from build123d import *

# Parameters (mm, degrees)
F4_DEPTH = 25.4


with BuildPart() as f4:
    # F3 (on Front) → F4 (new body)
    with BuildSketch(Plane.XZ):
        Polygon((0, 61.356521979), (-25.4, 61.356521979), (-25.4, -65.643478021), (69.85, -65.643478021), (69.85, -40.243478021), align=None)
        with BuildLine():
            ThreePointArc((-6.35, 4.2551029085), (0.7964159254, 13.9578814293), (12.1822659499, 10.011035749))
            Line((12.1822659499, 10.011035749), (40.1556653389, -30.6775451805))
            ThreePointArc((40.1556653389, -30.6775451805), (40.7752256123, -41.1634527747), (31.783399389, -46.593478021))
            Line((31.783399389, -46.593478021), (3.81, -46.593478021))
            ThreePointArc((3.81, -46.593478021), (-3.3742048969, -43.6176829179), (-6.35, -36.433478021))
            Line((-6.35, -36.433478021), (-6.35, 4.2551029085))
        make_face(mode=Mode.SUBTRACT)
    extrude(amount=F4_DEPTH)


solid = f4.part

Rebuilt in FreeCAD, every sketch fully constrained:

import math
import FreeCAD as App
import Part
import Sketcher
from FreeCAD import Vector
Q = App.Units.Quantity


def add_polygon(sketch, points):
    """Adds a closed chain of lines whose ends are joined by coincident constraints."""
    first, n = sketch.GeometryCount, len(points)
    for a, b in zip(points, points[1:] + points[:1]):
        sketch.addGeometry(Part.LineSegment(App.Vector(*a, 0), App.Vector(*b, 0)), False)
    for i in range(n):
        sketch.addConstraint(Sketcher.Constraint("Coincident", first + i, 2, first + (i + 1) % n, 1))

doc = App.newDocument("Part")
body = doc.addObject("PartDesign::Body", "Body")

# Sketch on XZ plane
sketch1 = body.newObject("Sketcher::SketchObject", "Sketch")
sketch1.AttachmentSupport = (doc.getObject("XZ_Plane"), [""])
sketch1.MapMode = "FlatFace"
add_polygon(sketch1, [(0, 61.356522), (-25.4, 61.356522), (-25.4, -65.643478), (69.85, -65.643478), (69.85, -40.243478)])  # lines 0-4
sketch1.addGeometry(Part.LineSegment(Vector(-6.35, -36.433478, 0), Vector(-6.35, 4.255103, 0)), False)  # 5
sketch1.addGeometry(Part.ArcOfCircle(Part.Circle(Vector(3.81, 4.255103, 0), Vector(0, 0, 1), 10.16), math.radians(34.508523), math.radians(180)), False)  # 6
sketch1.addGeometry(Part.LineSegment(Vector(12.182266, 10.011036, 0), Vector(40.155665, -30.677545, 0)), False)  # 7
sketch1.addGeometry(Part.ArcOfCircle(Part.Circle(Vector(31.783399, -36.433478, 0), Vector(0, 0, 1), 10.16), math.radians(-90), math.radians(34.508523)), False)  # 8
sketch1.addGeometry(Part.LineSegment(Vector(31.783399, -46.593478, 0), Vector(3.81, -46.593478, 0)), False)  # 9
sketch1.addGeometry(Part.ArcOfCircle(Part.Circle(Vector(3.81, -36.433478, 0), Vector(0, 0, 1), 10.16), math.radians(180), math.radians(270)), False)  # 10
sketch1.addConstraint([
    Sketcher.Constraint("Tangent", 5, 2, 6, 2),
    Sketcher.Constraint("Tangent", 6, 1, 7, 1),
    Sketcher.Constraint("Tangent", 7, 2, 8, 2),
    Sketcher.Constraint("Tangent", 8, 1, 9, 1),
    Sketcher.Constraint("Tangent", 9, 2, 10, 2),
    Sketcher.Constraint("Tangent", 10, 1, 5, 1),
    Sketcher.Constraint("Horizontal", 0),
    Sketcher.Constraint("Vertical", 1),
    Sketcher.Constraint("Horizontal", 2),
    Sketcher.Constraint("Vertical", 3),
    Sketcher.Constraint("Vertical", 5),
    Sketcher.Constraint("Horizontal", 9),
    Sketcher.Constraint("Equal", 6, 8),
    Sketcher.Constraint("Equal", 8, 10),
    Sketcher.Constraint("PointOnObject", 4, 2, -2),
    Sketcher.Constraint("Parallel", 4, 7),
    Sketcher.Constraint("Equal", 0, 3),
    Sketcher.Constraint("Radius", 6, Q("0.4 in")),
    Sketcher.Constraint("DistanceX", 0, 2, 0, 1, Q("1 in")),
    Sketcher.Constraint("DistanceY", 1, 2, 1, 1, Q("5 in")),
    Sketcher.Constraint("DistanceX", 2, 1, 2, 2, Q("3.75 in")),
    Sketcher.Constraint("DistanceX", 10, 3, 2, 2, Q("2.6 in")),
    Sketcher.Constraint("DistanceY", 10, 3, 0, 2, Q("3.85 in")),
    Sketcher.Constraint("DistanceX", 9, 2, 9, 1, Q("27.973399 mm")),
    Sketcher.Constraint("DistanceY", 8, 3, -1, 1, Q("36.433478 mm")),
])
pad1 = body.newObject("PartDesign::Pad", "Pad")
pad1.Profile = sketch1
pad1.Length = Q("1 in")

doc.recompute()
